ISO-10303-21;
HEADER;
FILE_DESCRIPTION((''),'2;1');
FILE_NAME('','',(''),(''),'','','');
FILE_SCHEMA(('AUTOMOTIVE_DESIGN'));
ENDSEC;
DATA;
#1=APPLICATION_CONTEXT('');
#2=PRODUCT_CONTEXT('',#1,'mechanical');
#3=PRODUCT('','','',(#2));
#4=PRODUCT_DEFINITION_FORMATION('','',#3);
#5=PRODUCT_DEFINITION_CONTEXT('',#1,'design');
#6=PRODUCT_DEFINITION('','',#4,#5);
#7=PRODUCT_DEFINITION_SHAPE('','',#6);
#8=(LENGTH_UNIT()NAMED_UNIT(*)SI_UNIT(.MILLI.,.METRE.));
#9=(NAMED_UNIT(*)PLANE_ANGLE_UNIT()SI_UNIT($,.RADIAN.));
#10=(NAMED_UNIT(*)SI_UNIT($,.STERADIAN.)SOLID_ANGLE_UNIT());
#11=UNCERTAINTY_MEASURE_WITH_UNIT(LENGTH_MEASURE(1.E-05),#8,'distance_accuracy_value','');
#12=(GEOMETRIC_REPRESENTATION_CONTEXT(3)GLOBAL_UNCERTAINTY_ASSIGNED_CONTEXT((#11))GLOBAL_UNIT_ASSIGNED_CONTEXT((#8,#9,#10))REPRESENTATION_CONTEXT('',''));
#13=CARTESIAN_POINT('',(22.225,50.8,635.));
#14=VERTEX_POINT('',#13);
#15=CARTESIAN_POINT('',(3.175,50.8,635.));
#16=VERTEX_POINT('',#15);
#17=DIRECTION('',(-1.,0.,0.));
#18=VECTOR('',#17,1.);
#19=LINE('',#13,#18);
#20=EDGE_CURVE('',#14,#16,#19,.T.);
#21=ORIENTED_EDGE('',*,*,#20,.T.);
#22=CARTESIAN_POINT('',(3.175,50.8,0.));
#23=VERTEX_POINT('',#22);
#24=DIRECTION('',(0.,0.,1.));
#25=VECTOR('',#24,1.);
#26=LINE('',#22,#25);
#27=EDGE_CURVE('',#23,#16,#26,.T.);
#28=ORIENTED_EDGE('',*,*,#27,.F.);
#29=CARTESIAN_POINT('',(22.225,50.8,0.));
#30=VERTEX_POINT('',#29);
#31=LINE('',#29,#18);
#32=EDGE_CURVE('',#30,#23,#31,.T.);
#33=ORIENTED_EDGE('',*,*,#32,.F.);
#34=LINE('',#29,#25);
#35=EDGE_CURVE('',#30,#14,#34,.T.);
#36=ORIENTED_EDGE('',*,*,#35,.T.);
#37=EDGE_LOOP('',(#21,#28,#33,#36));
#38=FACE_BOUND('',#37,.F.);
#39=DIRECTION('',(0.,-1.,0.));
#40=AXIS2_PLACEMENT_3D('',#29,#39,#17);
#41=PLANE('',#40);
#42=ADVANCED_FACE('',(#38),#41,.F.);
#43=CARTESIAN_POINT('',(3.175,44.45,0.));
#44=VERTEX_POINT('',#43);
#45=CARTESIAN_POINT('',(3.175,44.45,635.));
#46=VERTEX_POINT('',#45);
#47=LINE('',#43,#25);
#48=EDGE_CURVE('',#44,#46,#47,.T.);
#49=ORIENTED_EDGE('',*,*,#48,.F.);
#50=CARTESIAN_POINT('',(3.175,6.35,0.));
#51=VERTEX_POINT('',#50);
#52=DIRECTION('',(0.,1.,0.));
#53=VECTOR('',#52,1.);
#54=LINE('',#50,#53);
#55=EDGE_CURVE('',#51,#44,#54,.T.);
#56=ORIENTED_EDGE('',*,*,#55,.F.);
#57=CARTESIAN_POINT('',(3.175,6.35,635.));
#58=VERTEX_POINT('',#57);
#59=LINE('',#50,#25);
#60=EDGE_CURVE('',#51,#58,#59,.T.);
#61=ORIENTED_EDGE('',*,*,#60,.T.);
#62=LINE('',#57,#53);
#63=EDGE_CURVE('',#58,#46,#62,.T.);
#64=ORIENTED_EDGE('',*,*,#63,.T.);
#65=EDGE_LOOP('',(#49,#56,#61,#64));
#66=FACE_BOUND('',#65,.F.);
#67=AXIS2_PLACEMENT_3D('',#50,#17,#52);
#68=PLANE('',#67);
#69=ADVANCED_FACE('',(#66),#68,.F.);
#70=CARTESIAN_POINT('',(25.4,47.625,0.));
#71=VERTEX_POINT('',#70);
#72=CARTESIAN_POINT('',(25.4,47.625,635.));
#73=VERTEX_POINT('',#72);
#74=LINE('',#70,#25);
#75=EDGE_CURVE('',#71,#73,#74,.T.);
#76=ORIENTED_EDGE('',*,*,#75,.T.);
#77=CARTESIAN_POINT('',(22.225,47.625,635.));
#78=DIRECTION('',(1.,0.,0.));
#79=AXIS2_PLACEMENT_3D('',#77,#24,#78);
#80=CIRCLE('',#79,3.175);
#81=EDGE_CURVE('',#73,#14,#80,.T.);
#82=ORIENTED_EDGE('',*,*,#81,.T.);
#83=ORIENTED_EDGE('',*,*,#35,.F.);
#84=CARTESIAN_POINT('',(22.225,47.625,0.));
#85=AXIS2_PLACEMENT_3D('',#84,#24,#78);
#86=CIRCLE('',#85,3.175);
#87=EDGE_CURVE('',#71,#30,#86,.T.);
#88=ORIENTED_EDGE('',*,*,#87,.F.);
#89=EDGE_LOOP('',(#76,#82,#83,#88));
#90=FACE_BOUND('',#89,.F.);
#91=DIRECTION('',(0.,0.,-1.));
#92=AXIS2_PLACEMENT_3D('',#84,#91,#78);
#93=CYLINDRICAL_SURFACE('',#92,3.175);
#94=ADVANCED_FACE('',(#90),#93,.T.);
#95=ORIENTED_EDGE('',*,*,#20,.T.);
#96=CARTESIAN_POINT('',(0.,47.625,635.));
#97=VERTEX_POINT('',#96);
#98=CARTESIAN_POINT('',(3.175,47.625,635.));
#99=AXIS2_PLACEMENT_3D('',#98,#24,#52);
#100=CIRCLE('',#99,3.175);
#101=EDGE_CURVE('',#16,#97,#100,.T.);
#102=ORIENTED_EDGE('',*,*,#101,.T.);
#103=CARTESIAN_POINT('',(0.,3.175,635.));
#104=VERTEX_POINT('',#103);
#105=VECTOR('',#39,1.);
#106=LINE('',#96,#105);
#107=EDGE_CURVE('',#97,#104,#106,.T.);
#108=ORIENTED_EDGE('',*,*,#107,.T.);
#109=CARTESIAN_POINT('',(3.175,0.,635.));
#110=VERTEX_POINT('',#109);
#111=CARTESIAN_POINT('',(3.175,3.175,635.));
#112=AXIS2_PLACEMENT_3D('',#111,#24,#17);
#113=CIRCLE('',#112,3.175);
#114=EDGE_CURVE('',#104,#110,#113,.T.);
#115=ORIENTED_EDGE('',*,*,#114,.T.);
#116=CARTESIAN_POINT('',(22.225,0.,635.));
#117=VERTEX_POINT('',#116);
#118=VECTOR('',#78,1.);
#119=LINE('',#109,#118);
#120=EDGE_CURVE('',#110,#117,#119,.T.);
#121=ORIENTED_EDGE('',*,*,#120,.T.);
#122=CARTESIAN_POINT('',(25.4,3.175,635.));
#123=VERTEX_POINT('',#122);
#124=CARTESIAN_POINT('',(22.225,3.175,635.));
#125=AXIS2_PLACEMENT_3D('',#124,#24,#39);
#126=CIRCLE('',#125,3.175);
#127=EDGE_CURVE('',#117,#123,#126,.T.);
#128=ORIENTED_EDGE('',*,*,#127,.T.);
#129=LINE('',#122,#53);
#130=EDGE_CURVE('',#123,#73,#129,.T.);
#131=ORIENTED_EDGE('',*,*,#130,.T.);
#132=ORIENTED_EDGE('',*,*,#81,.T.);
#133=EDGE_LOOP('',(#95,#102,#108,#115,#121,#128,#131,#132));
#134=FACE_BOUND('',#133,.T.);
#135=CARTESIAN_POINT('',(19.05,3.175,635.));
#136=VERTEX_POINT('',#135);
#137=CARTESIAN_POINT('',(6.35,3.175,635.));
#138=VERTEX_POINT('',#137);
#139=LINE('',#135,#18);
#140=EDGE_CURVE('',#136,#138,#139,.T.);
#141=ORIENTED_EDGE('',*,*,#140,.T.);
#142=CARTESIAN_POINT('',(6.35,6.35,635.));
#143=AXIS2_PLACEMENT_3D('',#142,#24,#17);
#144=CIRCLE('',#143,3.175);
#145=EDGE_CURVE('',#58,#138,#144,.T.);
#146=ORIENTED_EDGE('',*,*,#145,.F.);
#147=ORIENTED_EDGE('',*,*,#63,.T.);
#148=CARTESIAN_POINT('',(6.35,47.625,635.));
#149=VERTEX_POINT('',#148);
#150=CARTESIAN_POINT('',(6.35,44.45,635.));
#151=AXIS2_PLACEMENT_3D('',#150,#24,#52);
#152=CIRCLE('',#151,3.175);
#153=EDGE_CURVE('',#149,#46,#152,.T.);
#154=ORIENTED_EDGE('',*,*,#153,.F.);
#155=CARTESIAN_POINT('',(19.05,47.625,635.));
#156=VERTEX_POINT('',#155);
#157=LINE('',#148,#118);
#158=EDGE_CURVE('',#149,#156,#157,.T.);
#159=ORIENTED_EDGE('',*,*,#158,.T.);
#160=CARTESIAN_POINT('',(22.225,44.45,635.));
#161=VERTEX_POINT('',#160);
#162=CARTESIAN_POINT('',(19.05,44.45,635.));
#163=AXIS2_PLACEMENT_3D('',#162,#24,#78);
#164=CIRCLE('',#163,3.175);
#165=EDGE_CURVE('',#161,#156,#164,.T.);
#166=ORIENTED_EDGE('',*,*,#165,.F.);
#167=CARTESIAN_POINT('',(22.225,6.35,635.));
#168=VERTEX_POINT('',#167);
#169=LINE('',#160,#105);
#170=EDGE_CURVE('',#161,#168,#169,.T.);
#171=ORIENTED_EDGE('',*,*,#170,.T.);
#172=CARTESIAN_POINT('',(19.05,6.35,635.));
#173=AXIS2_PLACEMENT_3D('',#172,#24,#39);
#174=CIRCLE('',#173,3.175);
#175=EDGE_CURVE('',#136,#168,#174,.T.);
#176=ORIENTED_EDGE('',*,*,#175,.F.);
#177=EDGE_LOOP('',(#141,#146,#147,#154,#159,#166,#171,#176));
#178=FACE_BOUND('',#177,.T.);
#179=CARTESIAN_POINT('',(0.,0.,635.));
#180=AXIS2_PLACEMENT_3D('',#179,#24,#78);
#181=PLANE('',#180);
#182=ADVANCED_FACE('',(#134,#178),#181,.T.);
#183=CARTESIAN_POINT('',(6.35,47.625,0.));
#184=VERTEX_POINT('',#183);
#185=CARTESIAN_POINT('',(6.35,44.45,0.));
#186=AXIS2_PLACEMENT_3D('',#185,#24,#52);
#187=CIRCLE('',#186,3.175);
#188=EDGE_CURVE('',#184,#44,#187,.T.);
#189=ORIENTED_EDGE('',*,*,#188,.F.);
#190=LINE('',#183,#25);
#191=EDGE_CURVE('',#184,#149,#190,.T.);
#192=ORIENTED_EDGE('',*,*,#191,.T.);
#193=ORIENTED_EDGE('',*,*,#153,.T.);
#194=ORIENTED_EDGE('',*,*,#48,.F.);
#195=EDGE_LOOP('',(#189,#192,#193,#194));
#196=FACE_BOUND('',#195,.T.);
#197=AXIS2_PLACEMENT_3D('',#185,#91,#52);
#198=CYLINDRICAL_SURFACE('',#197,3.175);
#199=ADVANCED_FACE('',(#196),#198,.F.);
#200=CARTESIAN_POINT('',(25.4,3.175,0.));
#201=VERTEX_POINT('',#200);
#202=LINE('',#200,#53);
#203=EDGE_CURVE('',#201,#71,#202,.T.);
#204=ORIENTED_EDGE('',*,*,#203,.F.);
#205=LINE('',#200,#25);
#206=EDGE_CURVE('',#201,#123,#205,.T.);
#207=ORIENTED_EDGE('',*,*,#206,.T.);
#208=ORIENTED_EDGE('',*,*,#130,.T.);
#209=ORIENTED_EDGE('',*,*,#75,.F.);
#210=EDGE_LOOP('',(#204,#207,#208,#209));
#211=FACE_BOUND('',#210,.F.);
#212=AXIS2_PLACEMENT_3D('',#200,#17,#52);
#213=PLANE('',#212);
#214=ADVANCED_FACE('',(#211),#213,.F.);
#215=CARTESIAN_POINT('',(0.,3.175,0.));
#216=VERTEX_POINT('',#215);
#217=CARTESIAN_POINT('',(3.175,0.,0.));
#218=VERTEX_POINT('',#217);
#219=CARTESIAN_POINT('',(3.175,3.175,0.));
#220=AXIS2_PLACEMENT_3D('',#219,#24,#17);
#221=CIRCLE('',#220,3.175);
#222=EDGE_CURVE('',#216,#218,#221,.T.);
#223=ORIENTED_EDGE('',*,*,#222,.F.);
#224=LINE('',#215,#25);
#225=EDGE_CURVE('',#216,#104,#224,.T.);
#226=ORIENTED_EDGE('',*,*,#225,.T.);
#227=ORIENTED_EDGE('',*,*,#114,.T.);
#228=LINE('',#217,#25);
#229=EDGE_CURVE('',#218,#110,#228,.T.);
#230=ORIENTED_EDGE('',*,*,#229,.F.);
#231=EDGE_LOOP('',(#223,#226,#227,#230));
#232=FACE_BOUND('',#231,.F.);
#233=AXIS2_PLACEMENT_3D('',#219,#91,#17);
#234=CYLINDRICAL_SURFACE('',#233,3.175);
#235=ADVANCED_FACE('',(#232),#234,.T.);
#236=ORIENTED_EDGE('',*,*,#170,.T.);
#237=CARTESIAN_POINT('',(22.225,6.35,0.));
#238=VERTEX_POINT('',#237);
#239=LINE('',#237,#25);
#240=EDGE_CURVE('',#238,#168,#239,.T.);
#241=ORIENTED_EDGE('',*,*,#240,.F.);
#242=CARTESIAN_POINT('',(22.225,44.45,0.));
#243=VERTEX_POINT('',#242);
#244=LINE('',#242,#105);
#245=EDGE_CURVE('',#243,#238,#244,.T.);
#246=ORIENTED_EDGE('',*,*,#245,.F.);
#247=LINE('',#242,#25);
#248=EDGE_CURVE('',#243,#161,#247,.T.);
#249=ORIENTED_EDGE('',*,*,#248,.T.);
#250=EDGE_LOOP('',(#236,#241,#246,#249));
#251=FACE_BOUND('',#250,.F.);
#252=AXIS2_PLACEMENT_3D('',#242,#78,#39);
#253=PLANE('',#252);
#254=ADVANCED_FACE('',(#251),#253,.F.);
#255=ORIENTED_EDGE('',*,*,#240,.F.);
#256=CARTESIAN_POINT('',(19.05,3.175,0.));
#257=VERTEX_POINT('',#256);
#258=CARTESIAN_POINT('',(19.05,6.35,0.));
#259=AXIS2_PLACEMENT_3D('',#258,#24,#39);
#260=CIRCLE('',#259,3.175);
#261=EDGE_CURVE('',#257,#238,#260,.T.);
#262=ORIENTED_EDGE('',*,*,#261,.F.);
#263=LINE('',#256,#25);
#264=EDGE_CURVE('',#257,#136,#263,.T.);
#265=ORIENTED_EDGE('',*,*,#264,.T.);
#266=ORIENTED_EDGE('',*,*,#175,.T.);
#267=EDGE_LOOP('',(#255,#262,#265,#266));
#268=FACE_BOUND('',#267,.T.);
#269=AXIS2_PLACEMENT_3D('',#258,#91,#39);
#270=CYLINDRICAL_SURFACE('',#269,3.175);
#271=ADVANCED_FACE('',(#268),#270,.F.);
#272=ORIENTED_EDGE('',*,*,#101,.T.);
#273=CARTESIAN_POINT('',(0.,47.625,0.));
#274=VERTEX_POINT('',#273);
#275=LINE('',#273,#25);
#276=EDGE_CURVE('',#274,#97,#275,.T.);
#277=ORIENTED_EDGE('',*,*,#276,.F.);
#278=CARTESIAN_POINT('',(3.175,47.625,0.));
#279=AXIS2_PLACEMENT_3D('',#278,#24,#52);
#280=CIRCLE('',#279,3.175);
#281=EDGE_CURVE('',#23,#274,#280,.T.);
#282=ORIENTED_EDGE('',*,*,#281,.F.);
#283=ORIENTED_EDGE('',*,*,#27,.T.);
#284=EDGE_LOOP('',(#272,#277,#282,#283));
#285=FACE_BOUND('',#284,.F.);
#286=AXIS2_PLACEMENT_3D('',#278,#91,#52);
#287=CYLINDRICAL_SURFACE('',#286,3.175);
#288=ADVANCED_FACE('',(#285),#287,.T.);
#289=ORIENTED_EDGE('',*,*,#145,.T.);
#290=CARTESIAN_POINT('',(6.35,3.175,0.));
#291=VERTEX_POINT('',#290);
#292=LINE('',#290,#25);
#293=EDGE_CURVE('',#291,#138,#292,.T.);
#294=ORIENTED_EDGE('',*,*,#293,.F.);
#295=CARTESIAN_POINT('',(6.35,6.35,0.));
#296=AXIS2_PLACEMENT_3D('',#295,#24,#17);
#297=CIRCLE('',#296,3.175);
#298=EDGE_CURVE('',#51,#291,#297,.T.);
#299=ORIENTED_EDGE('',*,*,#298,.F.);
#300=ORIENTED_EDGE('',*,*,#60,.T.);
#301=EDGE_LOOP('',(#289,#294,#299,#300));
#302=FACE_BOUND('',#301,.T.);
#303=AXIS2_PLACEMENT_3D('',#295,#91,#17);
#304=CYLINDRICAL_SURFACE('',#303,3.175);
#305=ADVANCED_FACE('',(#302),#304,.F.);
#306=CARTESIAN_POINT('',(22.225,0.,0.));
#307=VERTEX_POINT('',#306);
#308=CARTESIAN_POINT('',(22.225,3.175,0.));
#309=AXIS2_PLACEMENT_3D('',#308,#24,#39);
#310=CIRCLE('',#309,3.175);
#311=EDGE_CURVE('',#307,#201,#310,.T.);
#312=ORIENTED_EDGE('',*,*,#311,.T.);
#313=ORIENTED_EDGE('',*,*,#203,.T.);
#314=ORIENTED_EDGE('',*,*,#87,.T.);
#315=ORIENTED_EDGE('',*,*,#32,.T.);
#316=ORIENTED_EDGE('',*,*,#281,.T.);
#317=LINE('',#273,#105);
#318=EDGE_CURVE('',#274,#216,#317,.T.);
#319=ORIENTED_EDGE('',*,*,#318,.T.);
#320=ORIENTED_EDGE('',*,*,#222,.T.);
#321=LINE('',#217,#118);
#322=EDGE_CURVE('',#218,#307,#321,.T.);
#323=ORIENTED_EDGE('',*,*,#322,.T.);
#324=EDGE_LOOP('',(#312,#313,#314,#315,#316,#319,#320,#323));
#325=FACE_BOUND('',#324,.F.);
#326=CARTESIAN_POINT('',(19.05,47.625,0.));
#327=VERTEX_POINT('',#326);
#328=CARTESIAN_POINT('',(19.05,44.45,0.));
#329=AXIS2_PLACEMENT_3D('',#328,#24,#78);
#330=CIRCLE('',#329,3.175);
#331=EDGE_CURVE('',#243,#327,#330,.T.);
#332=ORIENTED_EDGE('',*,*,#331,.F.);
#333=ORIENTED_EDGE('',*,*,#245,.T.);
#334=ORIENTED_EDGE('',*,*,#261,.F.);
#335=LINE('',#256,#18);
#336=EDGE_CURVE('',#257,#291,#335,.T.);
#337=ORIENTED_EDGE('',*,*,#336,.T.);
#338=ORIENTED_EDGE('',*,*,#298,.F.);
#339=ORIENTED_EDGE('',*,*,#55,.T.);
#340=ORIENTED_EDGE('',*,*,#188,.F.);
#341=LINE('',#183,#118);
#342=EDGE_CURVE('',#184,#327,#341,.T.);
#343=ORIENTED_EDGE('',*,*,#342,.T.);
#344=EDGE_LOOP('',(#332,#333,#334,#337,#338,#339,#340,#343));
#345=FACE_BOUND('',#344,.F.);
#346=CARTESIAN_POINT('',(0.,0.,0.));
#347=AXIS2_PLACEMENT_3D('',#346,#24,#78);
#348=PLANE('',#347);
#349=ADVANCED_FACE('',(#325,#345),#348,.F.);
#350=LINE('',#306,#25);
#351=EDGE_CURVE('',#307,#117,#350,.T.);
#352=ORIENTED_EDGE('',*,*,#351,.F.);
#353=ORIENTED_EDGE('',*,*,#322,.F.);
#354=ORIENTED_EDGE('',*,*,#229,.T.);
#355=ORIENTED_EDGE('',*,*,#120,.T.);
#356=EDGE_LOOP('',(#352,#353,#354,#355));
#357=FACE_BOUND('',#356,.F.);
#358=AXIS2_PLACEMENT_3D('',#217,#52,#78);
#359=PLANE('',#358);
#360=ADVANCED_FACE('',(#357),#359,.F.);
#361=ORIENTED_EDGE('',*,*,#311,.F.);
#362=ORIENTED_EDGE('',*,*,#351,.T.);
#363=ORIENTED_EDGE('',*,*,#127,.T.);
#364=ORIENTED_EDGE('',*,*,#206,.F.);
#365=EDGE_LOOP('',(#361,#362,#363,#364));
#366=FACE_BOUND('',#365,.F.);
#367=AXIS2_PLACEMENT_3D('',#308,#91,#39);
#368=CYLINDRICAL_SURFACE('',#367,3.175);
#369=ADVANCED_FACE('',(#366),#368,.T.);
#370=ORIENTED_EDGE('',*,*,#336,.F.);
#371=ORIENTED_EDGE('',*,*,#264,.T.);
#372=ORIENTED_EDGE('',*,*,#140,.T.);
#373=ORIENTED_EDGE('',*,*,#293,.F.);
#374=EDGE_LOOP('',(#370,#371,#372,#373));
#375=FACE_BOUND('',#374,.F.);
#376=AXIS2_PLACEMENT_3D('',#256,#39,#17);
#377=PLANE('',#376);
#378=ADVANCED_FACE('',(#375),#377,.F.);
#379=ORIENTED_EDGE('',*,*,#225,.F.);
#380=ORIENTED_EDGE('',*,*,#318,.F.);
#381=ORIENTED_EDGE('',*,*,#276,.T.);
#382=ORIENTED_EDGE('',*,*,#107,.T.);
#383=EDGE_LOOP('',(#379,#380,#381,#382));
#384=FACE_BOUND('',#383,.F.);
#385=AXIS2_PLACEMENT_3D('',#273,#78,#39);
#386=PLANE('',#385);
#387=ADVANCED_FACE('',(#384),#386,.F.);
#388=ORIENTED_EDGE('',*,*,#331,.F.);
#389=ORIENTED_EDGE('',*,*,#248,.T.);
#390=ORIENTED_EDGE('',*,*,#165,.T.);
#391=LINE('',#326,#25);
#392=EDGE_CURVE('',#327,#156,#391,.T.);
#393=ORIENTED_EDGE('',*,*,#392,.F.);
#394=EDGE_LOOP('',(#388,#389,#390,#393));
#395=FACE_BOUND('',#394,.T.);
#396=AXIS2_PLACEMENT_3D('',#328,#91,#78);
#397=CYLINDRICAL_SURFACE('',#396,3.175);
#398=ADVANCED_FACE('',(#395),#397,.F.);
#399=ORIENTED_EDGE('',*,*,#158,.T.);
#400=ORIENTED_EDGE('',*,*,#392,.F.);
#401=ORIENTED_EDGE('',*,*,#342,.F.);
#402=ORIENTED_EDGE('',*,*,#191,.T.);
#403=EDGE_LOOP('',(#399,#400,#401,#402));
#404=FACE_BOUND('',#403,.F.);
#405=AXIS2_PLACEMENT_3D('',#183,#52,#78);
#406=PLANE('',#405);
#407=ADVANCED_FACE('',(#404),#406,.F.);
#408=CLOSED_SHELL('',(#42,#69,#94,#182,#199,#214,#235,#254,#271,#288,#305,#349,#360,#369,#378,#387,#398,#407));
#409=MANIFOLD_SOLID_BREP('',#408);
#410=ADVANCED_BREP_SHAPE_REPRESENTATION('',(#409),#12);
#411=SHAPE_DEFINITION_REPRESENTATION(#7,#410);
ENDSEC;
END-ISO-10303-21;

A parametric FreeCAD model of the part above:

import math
import FreeCAD as App
import Part
import Sketcher
Q = App.Units.Quantity

doc = App.newDocument("Part")
body = doc.addObject("PartDesign::Body", "Body")

# Sketch on XY plane
sketch1 = body.newObject("Sketcher::SketchObject", "Sketch")
sketch1.AttachmentSupport = (doc.getObject("XY_Plane"), [""])
sketch1.MapMode = "FlatFace"
sketch1.addGeometry(Part.ArcOfCircle(Part.Circle(App.Vector(3.175, 3.175, 0), App.Vector(0, 0, 1), 3.175), math.radians(180), math.radians(270)), False)
sketch1.addGeometry(Part.LineSegment(App.Vector(3.175, 0, 0), App.Vector(22.225, 0, 0)), False)
sketch1.addGeometry(Part.ArcOfCircle(Part.Circle(App.Vector(22.225, 3.175, 0), App.Vector(0, 0, 1), 3.175), math.radians(-90), math.radians(0)), False)
sketch1.addGeometry(Part.LineSegment(App.Vector(25.4, 3.175, 0), App.Vector(25.4, 47.625, 0)), False)
sketch1.addGeometry(Part.ArcOfCircle(Part.Circle(App.Vector(22.225, 47.625, 0), App.Vector(0, 0, 1), 3.175), math.radians(0), math.radians(90)), False)
sketch1.addGeometry(Part.LineSegment(App.Vector(22.225, 50.8, 0), App.Vector(3.175, 50.8, 0)), False)
sketch1.addGeometry(Part.ArcOfCircle(Part.Circle(App.Vector(3.175, 47.625, 0), App.Vector(0, 0, 1), 3.175), math.radians(90), math.radians(180)), False)
sketch1.addGeometry(Part.LineSegment(App.Vector(0, 47.625, 0), App.Vector(0, 3.175, 0)), False)
sketch1.addGeometry(Part.ArcOfCircle(Part.Circle(App.Vector(6.35, 44.45, 0), App.Vector(0, 0, 1), 3.175), math.radians(90), math.radians(180)), False)
sketch1.addGeometry(Part.LineSegment(App.Vector(6.35, 47.625, 0), App.Vector(19.05, 47.625, 0)), False)
sketch1.addGeometry(Part.ArcOfCircle(Part.Circle(App.Vector(19.05, 44.45, 0), App.Vector(0, 0, 1), 3.175), math.radians(0), math.radians(90)), False)
sketch1.addGeometry(Part.LineSegment(App.Vector(22.225, 44.45, 0), App.Vector(22.225, 6.35, 0)), False)
sketch1.addGeometry(Part.ArcOfCircle(Part.Circle(App.Vector(19.05, 6.35, 0), App.Vector(0, 0, 1), 3.175), math.radians(-90), math.radians(0)), False)
sketch1.addGeometry(Part.LineSegment(App.Vector(19.05, 3.175, 0), App.Vector(6.35, 3.175, 0)), False)
sketch1.addGeometry(Part.ArcOfCircle(Part.Circle(App.Vector(6.35, 6.35, 0), App.Vector(0, 0, 1), 3.175), math.radians(180), math.radians(270)), False)
sketch1.addGeometry(Part.LineSegment(App.Vector(3.175, 6.35, 0), App.Vector(3.175, 44.45, 0)), False)
sketch1.addConstraint(Sketcher.Constraint("Tangent", 0, 2, 1, 1))
sketch1.addConstraint(Sketcher.Constraint("Tangent", 1, 2, 2, 1))
sketch1.addConstraint(Sketcher.Constraint("Tangent", 2, 2, 3, 1))
sketch1.addConstraint(Sketcher.Constraint("Tangent", 3, 2, 4, 1))
sketch1.addConstraint(Sketcher.Constraint("Tangent", 4, 2, 5, 1))
sketch1.addConstraint(Sketcher.Constraint("Tangent", 5, 2, 6, 1))
sketch1.addConstraint(Sketcher.Constraint("Tangent", 6, 2, 7, 1))
sketch1.addConstraint(Sketcher.Constraint("Tangent", 7, 2, 0, 1))
sketch1.addConstraint(Sketcher.Constraint("Tangent", 8, 1, 9, 1))
sketch1.addConstraint(Sketcher.Constraint("Tangent", 9, 2, 10, 2))
sketch1.addConstraint(Sketcher.Constraint("Tangent", 10, 1, 11, 1))
sketch1.addConstraint(Sketcher.Constraint("Tangent", 11, 2, 12, 2))
sketch1.addConstraint(Sketcher.Constraint("Tangent", 12, 1, 13, 1))
sketch1.addConstraint(Sketcher.Constraint("Tangent", 13, 2, 14, 2))
sketch1.addConstraint(Sketcher.Constraint("Tangent", 14, 1, 15, 1))
sketch1.addConstraint(Sketcher.Constraint("Tangent", 15, 2, 8, 2))
sketch1.addConstraint(Sketcher.Constraint("Horizontal", 1))
sketch1.addConstraint(Sketcher.Constraint("Vertical", 3))
sketch1.addConstraint(Sketcher.Constraint("Horizontal", 5))
sketch1.addConstraint(Sketcher.Constraint("Vertical", 7))
sketch1.addConstraint(Sketcher.Constraint("Horizontal", 9))
sketch1.addConstraint(Sketcher.Constraint("Vertical", 11))
sketch1.addConstraint(Sketcher.Constraint("Horizontal", 13))
sketch1.addConstraint(Sketcher.Constraint("Vertical", 15))
sketch1.addConstraint(Sketcher.Constraint("Equal", 0, 2))
sketch1.addConstraint(Sketcher.Constraint("Equal", 2, 4))
sketch1.addConstraint(Sketcher.Constraint("Equal", 4, 6))
sketch1.addConstraint(Sketcher.Constraint("Equal", 6, 8))
sketch1.addConstraint(Sketcher.Constraint("Equal", 8, 10))
sketch1.addConstraint(Sketcher.Constraint("Equal", 10, 12))
sketch1.addConstraint(Sketcher.Constraint("Equal", 12, 14))
sketch1.addConstraint(Sketcher.Constraint("PointOnObject", 0, 2, -1))
sketch1.addConstraint(Sketcher.Constraint("PointOnObject", 6, 2, -2))
sketch1.addConstraint(Sketcher.Constraint("Horizontal", 6, 2, 8, 1))
sketch1.addConstraint(Sketcher.Constraint("Horizontal", 7, 2, 12, 1))
sketch1.addConstraint(Sketcher.Constraint("Vertical", 4, 2, 10, 1))
sketch1.addConstraint(Sketcher.Constraint("Vertical", 5, 2, 14, 1))
sketch1.addConstraint(Sketcher.Constraint("DistanceX", -1, 1, 2, 2, Q("1 in")))
sketch1.addConstraint(Sketcher.Constraint("DistanceY", -1, 1, 4, 2, Q("2 in")))
sketch1.addConstraint(Sketcher.Constraint("Radius", 0, Q("0.125 in")))
pad1 = body.newObject("PartDesign::Pad", "Pad")
pad1.Profile = sketch1
pad1.Length = Q("25 in")

doc.recompute()
